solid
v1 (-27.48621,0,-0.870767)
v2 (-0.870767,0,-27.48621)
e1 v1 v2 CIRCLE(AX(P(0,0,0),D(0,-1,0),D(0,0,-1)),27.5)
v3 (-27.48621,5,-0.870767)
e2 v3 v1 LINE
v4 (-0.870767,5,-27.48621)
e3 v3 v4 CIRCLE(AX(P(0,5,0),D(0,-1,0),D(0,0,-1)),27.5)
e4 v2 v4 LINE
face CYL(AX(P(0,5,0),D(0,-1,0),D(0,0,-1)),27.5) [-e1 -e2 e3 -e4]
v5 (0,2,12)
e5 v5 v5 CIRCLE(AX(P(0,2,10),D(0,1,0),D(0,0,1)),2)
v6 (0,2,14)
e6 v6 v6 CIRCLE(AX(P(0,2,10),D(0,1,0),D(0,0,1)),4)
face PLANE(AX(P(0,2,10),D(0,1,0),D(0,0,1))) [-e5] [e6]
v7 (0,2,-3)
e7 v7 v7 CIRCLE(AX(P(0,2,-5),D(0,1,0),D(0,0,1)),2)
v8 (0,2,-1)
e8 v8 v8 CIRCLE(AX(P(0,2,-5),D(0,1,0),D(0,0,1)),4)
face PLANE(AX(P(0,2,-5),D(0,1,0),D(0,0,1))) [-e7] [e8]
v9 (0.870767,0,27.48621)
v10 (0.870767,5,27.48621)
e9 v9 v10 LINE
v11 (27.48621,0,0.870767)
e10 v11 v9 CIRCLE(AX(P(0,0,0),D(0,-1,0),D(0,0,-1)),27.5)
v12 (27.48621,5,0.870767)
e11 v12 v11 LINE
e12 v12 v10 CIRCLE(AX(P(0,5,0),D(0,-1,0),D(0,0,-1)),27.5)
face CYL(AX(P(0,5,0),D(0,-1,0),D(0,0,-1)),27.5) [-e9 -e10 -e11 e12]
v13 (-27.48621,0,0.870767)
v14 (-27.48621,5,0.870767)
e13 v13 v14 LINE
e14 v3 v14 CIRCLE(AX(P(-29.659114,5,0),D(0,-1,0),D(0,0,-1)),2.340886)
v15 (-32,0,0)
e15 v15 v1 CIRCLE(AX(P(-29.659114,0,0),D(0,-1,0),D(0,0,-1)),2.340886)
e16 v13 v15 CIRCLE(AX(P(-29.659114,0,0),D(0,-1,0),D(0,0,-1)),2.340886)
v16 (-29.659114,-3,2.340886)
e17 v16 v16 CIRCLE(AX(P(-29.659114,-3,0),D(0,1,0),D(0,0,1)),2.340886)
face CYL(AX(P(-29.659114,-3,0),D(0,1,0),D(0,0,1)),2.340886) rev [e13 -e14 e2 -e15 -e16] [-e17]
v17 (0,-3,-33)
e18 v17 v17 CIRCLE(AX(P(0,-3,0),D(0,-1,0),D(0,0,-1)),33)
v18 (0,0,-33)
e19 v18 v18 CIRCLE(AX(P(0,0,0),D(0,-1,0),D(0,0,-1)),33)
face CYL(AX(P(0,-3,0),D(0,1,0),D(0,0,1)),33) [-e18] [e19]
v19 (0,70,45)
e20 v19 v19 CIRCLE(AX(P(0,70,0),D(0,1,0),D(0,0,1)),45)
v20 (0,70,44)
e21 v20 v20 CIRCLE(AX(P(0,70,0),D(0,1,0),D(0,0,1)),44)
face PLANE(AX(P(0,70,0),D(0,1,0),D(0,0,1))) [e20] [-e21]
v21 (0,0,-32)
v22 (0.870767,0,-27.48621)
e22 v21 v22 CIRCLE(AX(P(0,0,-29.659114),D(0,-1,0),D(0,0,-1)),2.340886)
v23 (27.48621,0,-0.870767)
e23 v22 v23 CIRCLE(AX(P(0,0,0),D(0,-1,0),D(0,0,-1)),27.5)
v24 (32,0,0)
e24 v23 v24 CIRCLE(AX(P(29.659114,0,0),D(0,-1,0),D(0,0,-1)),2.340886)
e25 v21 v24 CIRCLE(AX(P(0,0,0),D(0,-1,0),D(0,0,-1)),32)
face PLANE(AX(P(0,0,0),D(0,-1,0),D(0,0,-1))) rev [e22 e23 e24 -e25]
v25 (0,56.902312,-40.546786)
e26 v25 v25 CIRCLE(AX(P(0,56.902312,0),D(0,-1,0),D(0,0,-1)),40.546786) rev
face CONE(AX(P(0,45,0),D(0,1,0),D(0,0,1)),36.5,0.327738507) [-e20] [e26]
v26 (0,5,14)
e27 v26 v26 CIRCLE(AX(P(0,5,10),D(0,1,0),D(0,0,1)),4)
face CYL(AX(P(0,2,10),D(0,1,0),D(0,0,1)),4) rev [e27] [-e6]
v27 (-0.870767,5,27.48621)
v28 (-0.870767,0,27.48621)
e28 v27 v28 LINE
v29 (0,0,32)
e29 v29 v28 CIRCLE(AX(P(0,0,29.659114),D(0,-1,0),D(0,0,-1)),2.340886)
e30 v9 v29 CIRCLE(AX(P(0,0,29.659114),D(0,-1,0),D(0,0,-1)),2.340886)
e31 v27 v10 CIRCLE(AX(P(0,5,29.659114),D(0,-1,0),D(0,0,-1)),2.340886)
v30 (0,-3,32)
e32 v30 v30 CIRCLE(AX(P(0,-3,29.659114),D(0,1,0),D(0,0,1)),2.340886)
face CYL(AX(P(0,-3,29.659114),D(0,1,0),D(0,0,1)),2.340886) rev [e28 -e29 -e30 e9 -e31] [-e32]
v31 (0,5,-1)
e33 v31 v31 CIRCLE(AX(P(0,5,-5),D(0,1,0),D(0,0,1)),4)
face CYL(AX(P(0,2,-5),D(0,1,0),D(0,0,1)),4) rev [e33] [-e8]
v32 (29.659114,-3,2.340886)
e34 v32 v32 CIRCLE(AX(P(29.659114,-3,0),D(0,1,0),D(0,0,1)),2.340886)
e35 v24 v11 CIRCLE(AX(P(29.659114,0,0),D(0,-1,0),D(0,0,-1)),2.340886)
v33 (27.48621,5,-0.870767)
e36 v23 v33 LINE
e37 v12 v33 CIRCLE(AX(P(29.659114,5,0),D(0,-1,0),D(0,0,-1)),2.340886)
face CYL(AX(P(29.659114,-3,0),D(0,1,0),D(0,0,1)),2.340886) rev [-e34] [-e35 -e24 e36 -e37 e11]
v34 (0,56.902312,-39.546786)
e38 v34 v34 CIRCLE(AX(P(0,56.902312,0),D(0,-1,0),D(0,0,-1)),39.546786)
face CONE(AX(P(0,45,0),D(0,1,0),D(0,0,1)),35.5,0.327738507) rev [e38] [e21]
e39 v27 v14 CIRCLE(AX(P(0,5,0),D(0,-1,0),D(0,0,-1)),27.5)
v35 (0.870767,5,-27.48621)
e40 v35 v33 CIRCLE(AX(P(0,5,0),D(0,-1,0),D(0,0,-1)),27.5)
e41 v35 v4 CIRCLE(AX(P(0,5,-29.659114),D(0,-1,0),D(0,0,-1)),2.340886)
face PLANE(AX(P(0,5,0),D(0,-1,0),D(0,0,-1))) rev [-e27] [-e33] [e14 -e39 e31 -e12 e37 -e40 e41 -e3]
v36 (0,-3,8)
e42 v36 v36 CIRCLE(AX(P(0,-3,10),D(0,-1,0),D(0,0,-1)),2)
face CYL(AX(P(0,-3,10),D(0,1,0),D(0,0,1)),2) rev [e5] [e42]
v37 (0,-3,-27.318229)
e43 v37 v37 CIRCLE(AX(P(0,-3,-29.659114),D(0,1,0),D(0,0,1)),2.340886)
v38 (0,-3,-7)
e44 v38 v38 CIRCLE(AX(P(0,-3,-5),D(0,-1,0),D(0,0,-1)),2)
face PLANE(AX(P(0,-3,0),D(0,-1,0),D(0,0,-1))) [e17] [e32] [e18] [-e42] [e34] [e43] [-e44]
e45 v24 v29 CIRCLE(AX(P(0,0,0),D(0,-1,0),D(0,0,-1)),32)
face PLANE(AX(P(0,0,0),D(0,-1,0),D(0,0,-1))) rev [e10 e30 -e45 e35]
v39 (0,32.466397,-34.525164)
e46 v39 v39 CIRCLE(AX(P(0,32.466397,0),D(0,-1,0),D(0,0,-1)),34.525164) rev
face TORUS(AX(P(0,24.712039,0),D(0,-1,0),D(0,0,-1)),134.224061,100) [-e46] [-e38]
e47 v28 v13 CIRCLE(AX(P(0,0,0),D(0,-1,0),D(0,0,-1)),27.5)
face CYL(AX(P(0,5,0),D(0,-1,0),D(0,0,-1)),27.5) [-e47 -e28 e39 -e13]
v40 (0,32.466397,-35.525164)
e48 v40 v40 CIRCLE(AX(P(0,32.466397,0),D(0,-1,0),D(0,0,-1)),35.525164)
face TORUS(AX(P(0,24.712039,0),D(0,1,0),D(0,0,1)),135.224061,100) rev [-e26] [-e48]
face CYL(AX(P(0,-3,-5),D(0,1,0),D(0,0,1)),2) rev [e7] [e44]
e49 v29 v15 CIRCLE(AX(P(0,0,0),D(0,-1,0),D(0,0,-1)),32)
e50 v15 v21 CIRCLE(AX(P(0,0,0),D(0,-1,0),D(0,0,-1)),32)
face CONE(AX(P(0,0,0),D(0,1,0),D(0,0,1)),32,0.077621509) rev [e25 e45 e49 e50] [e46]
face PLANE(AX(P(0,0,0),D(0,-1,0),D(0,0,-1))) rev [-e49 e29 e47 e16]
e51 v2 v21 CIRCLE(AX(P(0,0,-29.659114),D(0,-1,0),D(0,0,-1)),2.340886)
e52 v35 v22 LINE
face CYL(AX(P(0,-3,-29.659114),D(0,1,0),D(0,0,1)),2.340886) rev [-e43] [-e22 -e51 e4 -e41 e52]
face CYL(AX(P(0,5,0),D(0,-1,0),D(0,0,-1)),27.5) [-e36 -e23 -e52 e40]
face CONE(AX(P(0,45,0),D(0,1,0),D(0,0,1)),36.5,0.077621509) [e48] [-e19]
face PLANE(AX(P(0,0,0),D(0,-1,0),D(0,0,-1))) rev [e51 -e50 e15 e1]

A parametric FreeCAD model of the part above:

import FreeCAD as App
import Part
import Sketcher


def edges_at(feature, points):
    """Names of the edges that pass closest to the given points."""
    edges = feature.Shape.Edges
    near = lambda p: min(range(len(edges)), key=lambda i: edges[i].distToShape(Part.Vertex(*p))[0])
    return sorted({f"Edge{near(p) + 1}" for p in points})

doc = App.newDocument("Part")
body = doc.addObject("PartDesign::Body", "Body")

# Sketch on YZ plane
sketch1 = doc.addObject("Sketcher::SketchObject", "Sketch")
body.addObject(sketch1)
sketch1.AttachmentSupport = (doc.YZ_Plane, [""])
sketch1.MapMode = "FlatFace"
sketch1.addGeometry([
    Part.LineSegment(App.Vector(0, 33, 0), App.Vector(0, 32, 0)),
    Part.LineSegment(App.Vector(0, 32, 0), App.Vector(45, 35.5, 0)),
    Part.LineSegment(App.Vector(45, 35.5, 0), App.Vector(45, 36.5, 0)),
    Part.LineSegment(App.Vector(45, 36.5, 0), App.Vector(0, 33, 0)),
], False)
sketch1.addConstraint([
    Sketcher.Constraint("Coincident", 0, 2, 1, 1),
    Sketcher.Constraint("Coincident", 1, 2, 2, 1),
    Sketcher.Constraint("Coincident", 2, 2, 3, 1),
    Sketcher.Constraint("Coincident", 3, 2, 0, 1),
    Sketcher.Constraint("Vertical", 0),
    Sketcher.Constraint("Vertical", 2),
    Sketcher.Constraint("PointOnObject", 0, 2, -2),
    Sketcher.Constraint("Parallel", 1, 3),
    Sketcher.Constraint("DistanceY", 0, 2, 0, 1, 1.0),
    Sketcher.Constraint("DistanceY", -1, 1, 0, 2, 32.0),
    Sketcher.Constraint("DistanceX", -1, 1, 1, 2, 45.0),
    Sketcher.Constraint("DistanceY", -1, 1, 1, 2, 35.5),
])
revolution = doc.addObject("PartDesign::Revolution", "Revolution")
body.addObject(revolution)
revolution.Profile = sketch1
revolution.ReferenceAxis = (sketch1, ["H_Axis"])
revolution.Angle = 360

# Sketch on XZ plane
sketch2 = doc.addObject("Sketcher::SketchObject", "Sketch001")
body.addObject(sketch2)
sketch2.AttachmentSupport = (doc.XZ_Plane, [""])
sketch2.MapMode = "FlatFace"
sketch2.addGeometry([
    Part.Circle(App.Vector(0, 0, 0), App.Vector(0, 0, 1), 33),
    Part.Circle(App.Vector(0, 10, 0), App.Vector(0, 0, 1), 2),
    Part.Circle(App.Vector(0, -5, 0), App.Vector(0, 0, 1), 2),
], False)
sketch2.addConstraint([
    Sketcher.Constraint("Coincident", 0, 3, -1, 1),
    Sketcher.Constraint("Equal", 1, 2),
    Sketcher.Constraint("PointOnObject", 1, 3, -2),
    Sketcher.Constraint("PointOnObject", 2, 3, -2),
    Sketcher.Constraint("Diameter", 0, 66.0),
    Sketcher.Constraint("Diameter", 1, 4.0),
    Sketcher.Constraint("DistanceY", -1, 1, 1, 3, 10.0),
    Sketcher.Constraint("DistanceY", 2, 3, -1, 1, 5.0),
])
pad1 = doc.addObject("PartDesign::Pad", "Pad")
body.addObject(pad1)
pad1.Profile = sketch2
pad1.Length = 3

# Sketch on XZ plane
sketch3 = doc.addObject("Sketcher::SketchObject", "Sketch002")
body.addObject(sketch3)
sketch3.AttachmentSupport = (doc.XZ_Plane, [""])
sketch3.MapMode = "FlatFace"
sketch3.AttachmentOffset = App.Placement(App.Vector(0, 0, -45), App.Rotation())
sketch3.addGeometry(Part.Circle(App.Vector(0, 0, 0), App.Vector(0, 0, 1), 36.5), False)
sketch3.addConstraint([
    Sketcher.Constraint("Coincident", 0, 3, -1, 1),
    Sketcher.Constraint("Diameter", 0, 73.0),
])

# Sketch on XZ plane
sketch4 = doc.addObject("Sketcher::SketchObject", "Sketch003")
body.addObject(sketch4)
sketch4.AttachmentSupport = (doc.XZ_Plane, [""])
sketch4.MapMode = "FlatFace"
sketch4.AttachmentOffset = App.Placement(App.Vector(0, 0, -70), App.Rotation())
sketch4.addGeometry(Part.Circle(App.Vector(0, 0, 0), App.Vector(0, 0, 1), 45), False)
sketch4.addConstraint([
    Sketcher.Constraint("Coincident", 0, 3, -1, 1),
    Sketcher.Constraint("Diameter", 0, 90.0),
])

additiveloft = doc.addObject("PartDesign::AdditiveLoft", "AdditiveLoft")
body.addObject(additiveloft)
additiveloft.Profile = sketch3
additiveloft.Sections = [sketch4]

# Sketch on XZ plane
sketch5 = doc.addObject("Sketcher::SketchObject", "Sketch004")
body.addObject(sketch5)
sketch5.AttachmentSupport = (doc.XZ_Plane, [""])
sketch5.MapMode = "FlatFace"
sketch5.AttachmentOffset = App.Placement(App.Vector(0, 0, -45), App.Rotation())
sketch5.addGeometry(Part.Circle(App.Vector(0, 0, 0), App.Vector(0, 0, 1), 35.5), False)
sketch5.addConstraint([
    Sketcher.Constraint("Coincident", 0, 3, -1, 1),
    Sketcher.Constraint("Diameter", 0, 71.0),
])

# Sketch on XZ plane
sketch6 = doc.addObject("Sketcher::SketchObject", "Sketch005")
body.addObject(sketch6)
sketch6.AttachmentSupport = (doc.XZ_Plane, [""])
sketch6.MapMode = "FlatFace"
sketch6.AttachmentOffset = App.Placement(App.Vector(0, 0, -70), App.Rotation())
sketch6.addGeometry(Part.Circle(App.Vector(0, 0, 0), App.Vector(0, 0, 1), 44), False)
sketch6.addConstraint([
    Sketcher.Constraint("Coincident", 0, 3, -1, 1),
    Sketcher.Constraint("Diameter", 0, 88.0),
])

subtractiveloft = doc.addObject("PartDesign::SubtractiveLoft", "SubtractiveLoft")
body.addObject(subtractiveloft)
subtractiveloft.Profile = sketch5
subtractiveloft.Sections = [sketch6]
doc.recompute()

fillet = doc.addObject("PartDesign::Fillet", "Fillet")
body.addObject(fillet)
fillet.Base = (subtractiveloft, edges_at(subtractiveloft, [(-25.102, 45, 25.102)]))
fillet.Radius = 100
doc.recompute()

fillet2 = doc.addObject("PartDesign::Fillet", "Fillet001")
body.addObject(fillet2)
fillet2.Base = (fillet, edges_at(fillet, [(-25.809, 45, 25.809)]))
fillet2.Radius = 100

# Sketch on XZ plane
sketch7 = doc.addObject("Sketcher::SketchObject", "Sketch006")
body.addObject(sketch7)
sketch7.AttachmentSupport = (doc.XZ_Plane, [""])
sketch7.MapMode = "FlatFace"
sketch7.AttachmentOffset = App.Placement(App.Vector(0, 0, -5), App.Rotation())
sketch7.addGeometry([
    Part.Circle(App.Vector(0, 0, 0), App.Vector(0, 0, 1), 27.5),
    Part.Circle(App.Vector(0, 10, 0), App.Vector(0, 0, 1), 2),
    Part.Circle(App.Vector(0, -5, 0), App.Vector(0, 0, 1), 2),
], False)
sketch7.addConstraint([
    Sketcher.Constraint("Coincident", 0, 3, -1, 1),
    Sketcher.Constraint("Equal", 1, 2),
    Sketcher.Constraint("PointOnObject", 1, 3, -2),
    Sketcher.Constraint("PointOnObject", 2, 3, -2),
    Sketcher.Constraint("Diameter", 0, 55.0),
    Sketcher.Constraint("Diameter", 1, 4.0),
    Sketcher.Constraint("DistanceY", -1, 1, 1, 3, 10.0),
    Sketcher.Constraint("DistanceY", 2, 3, -1, 1, 5.0),
])
pad2 = doc.addObject("PartDesign::Pad", "Pad001")
body.addObject(pad2)
pad2.Profile = sketch7
pad2.Length = 5

# Sketch on XZ plane
sketch8 = doc.addObject("Sketcher::SketchObject", "Sketch007")
body.addObject(sketch8)
sketch8.AttachmentSupport = (doc.XZ_Plane, [""])
sketch8.MapMode = "FlatFace"
sketch8.addGeometry([
    Part.Circle(App.Vector(0, -29.659114, 0), App.Vector(0, 0, 1), 2.340886),
    Part.Circle(App.Vector(29.659114, 0, 0), App.Vector(0, 0, 1), 2.340886),
    Part.Circle(App.Vector(0, 29.659114, 0), App.Vector(0, 0, 1), 2.340886),
    Part.Circle(App.Vector(-29.659114, 0, 0), App.Vector(0, 0, 1), 2.340886),
], False)
sketch8.addConstraint([
    Sketcher.Constraint("Equal", 0, 1),
    Sketcher.Constraint("Equal", 1, 2),
    Sketcher.Constraint("Equal", 2, 3),
    Sketcher.Constraint("Symmetric", 0, 3, 2, 3, -1, 1),
    Sketcher.Constraint("Symmetric", 1, 3, 3, 3, -1, 1),
    Sketcher.Constraint("PointOnObject", 0, 3, -2),
    Sketcher.Constraint("PointOnObject", 1, 3, -1),
    Sketcher.Constraint("Diameter", 0, 4.681771),
    Sketcher.Constraint("DistanceY", 0, 3, 2, 3, 59.318229),
    Sketcher.Constraint("DistanceX", 3, 3, 1, 3, 59.318229),
])
pocket1 = doc.addObject("PartDesign::Pocket", "Pocket")
body.addObject(pocket1)
pocket1.Profile = sketch8
pocket1.Type = "ThroughAll"
pocket1.Midplane = True

# Sketch on XZ plane
sketch9 = doc.addObject("Sketcher::SketchObject", "Sketch008")
body.addObject(sketch9)
sketch9.AttachmentSupport = (doc.XZ_Plane, [""])
sketch9.MapMode = "FlatFace"
sketch9.AttachmentOffset = App.Placement(App.Vector(0, 0, -5), App.Rotation())
sketch9.addGeometry([
    Part.Circle(App.Vector(0, -5, 0), App.Vector(0, 0, 1), 4),
    Part.Circle(App.Vector(0, 10, 0), App.Vector(0, 0, 1), 4),
], False)
sketch9.addConstraint([
    Sketcher.Constraint("Equal", 0, 1),
    Sketcher.Constraint("PointOnObject", 0, 3, -2),
    Sketcher.Constraint("PointOnObject", 1, 3, -2),
    Sketcher.Constraint("Diameter", 0, 8.0),
    Sketcher.Constraint("DistanceY", 0, 3, -1, 1, 5.0),
    Sketcher.Constraint("DistanceY", -1, 1, 1, 3, 10.0),
])
pocket2 = doc.addObject("PartDesign::Pocket", "Pocket001")
body.addObject(pocket2)
pocket2.Profile = sketch9
pocket2.Length = 3
pocket2.Reversed = True

doc.recompute()
